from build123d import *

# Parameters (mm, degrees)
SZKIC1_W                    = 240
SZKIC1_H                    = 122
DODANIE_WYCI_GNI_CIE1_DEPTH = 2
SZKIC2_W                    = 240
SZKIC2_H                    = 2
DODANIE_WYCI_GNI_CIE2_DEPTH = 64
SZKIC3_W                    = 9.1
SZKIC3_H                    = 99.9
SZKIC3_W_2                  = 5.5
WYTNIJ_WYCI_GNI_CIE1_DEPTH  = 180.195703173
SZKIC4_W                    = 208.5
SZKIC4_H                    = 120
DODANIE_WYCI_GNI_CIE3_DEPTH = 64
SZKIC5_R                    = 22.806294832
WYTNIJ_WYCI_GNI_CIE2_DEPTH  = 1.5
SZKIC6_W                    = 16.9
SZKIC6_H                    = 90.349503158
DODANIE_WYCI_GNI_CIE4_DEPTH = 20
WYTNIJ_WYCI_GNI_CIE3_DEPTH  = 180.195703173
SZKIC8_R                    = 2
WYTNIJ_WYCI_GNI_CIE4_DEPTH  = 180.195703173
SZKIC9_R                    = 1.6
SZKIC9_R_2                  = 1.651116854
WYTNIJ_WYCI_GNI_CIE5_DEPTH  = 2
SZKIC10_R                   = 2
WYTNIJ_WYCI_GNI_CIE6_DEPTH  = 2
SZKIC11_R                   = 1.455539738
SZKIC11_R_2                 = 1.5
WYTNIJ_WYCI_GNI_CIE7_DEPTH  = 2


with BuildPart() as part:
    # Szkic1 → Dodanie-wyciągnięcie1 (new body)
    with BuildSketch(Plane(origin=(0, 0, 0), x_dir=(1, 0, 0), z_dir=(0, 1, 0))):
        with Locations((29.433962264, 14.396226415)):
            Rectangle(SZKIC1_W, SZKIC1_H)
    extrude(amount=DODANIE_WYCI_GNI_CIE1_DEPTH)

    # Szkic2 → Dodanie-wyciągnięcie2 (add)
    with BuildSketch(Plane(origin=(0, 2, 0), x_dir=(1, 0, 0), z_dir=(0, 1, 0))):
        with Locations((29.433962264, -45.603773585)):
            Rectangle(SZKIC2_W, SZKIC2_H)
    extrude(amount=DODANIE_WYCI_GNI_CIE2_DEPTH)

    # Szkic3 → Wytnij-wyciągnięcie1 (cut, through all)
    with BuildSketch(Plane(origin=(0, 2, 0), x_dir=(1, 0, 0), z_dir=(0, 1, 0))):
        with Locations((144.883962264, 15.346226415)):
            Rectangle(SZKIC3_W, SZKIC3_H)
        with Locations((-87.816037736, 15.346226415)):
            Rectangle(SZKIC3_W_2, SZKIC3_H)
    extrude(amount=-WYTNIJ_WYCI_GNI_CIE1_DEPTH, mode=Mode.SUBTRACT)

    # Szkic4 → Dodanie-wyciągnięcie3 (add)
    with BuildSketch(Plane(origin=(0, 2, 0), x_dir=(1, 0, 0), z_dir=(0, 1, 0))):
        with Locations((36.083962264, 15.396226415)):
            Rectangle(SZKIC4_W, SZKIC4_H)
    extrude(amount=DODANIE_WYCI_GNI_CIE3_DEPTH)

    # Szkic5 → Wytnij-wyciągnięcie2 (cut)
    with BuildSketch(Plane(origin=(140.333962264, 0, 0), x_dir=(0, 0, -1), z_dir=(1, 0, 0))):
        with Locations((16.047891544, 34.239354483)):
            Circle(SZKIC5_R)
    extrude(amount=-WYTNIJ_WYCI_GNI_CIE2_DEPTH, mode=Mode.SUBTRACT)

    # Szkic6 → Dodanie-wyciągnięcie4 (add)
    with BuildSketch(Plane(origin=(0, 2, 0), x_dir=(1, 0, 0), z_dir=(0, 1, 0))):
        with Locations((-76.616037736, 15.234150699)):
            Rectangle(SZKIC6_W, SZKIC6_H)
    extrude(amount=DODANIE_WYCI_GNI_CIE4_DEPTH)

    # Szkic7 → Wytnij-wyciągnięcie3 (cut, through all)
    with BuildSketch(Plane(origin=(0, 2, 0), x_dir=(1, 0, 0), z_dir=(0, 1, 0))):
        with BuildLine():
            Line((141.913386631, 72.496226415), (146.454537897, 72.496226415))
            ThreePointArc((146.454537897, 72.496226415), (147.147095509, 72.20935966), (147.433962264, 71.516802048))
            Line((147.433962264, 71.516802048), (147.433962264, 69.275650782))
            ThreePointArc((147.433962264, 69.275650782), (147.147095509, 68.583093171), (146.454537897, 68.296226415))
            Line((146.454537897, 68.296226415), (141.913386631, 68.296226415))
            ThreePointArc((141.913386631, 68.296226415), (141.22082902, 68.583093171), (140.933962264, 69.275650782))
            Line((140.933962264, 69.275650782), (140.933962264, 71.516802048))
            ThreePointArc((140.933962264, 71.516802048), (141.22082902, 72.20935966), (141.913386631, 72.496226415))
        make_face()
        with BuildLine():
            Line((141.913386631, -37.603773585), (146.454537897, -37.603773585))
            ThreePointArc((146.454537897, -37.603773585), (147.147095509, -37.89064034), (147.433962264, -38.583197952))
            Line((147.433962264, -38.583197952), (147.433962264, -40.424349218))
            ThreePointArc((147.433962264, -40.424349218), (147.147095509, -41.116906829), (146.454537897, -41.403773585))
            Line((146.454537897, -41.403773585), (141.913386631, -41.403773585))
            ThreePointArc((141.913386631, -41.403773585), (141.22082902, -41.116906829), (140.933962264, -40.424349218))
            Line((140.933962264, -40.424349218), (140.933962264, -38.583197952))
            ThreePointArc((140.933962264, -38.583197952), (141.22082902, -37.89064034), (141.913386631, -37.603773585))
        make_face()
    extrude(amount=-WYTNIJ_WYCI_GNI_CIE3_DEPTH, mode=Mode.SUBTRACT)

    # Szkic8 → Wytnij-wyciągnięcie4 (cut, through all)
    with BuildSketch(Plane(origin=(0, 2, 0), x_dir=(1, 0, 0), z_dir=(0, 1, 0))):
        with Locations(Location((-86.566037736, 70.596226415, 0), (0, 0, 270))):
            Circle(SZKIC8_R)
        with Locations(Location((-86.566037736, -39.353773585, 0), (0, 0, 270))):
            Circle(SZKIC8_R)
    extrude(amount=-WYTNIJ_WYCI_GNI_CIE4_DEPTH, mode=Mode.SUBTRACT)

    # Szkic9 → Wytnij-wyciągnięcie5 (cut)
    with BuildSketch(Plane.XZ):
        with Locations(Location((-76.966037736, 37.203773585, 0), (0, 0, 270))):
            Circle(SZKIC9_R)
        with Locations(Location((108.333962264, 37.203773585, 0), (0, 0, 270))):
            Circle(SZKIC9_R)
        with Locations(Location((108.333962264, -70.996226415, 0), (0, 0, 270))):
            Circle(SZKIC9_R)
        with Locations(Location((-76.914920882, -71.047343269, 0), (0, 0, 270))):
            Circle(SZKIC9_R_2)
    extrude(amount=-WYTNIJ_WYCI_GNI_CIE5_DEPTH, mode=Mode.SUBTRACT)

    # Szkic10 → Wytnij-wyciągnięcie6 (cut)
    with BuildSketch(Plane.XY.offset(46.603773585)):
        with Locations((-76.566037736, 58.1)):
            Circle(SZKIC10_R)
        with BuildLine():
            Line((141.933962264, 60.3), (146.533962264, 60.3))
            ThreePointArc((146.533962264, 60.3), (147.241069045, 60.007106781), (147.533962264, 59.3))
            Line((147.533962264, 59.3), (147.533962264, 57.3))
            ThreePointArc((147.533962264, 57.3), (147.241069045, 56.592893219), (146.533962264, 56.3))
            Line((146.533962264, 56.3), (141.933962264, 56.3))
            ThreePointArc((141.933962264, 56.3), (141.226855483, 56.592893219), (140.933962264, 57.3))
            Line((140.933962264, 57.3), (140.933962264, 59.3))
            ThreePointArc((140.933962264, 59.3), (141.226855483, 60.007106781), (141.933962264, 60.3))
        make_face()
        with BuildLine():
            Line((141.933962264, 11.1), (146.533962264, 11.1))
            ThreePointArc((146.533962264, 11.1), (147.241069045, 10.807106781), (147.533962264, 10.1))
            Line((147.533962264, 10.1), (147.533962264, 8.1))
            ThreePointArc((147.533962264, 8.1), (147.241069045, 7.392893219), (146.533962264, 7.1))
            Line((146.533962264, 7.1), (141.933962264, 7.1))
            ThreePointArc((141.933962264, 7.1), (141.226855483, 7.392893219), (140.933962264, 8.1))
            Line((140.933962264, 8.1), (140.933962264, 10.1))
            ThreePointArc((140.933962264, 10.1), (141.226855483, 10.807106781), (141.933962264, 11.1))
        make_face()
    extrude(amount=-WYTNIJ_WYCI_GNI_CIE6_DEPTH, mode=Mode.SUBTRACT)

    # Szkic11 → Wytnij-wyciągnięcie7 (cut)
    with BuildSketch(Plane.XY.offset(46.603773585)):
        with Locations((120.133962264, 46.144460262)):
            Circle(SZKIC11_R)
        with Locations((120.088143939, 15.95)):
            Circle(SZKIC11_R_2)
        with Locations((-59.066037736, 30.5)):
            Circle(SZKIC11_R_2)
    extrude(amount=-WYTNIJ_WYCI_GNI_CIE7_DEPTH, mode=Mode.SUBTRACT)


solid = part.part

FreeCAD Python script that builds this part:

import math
import FreeCAD as App
import Part
import Sketcher

doc = App.newDocument("Part")
body = doc.addObject("PartDesign::Body", "Body")

# Sketch on XZ plane
sketch1 = body.newObject("Sketcher::SketchObject", "Sketch")
sketch1.AttachmentSupport = (doc.getObject("XZ_Plane"), [""])
sketch1.MapMode = "FlatFace"
sketch1.addGeometry([
    Part.LineSegment(App.Vector(-91, -75, 0), App.Vector(-91, 47, 0)),
    Part.LineSegment(App.Vector(-91, 47, 0), App.Vector(149, 47, 0)),
    Part.LineSegment(App.Vector(149, 47, 0), App.Vector(149, -75, 0)),
    Part.LineSegment(App.Vector(149, -75, 0), App.Vector(-91, -75, 0)),
], False)
sketch1.addConstraint([
    Sketcher.Constraint("Coincident", 0, 2, 1, 1),
    Sketcher.Constraint("Coincident", 1, 2, 2, 1),
    Sketcher.Constraint("Coincident", 2, 2, 3, 1),
    Sketcher.Constraint("Coincident", 3, 2, 0, 1),
    Sketcher.Constraint("Vertical", 0),
    Sketcher.Constraint("Horizontal", 1),
    Sketcher.Constraint("Vertical", 2),
    Sketcher.Constraint("Horizontal", 3),
    Sketcher.Constraint("DistanceX", 1, 1, 1, 2, 240.0),
    Sketcher.Constraint("DistanceY", 0, 1, 0, 2, 122.0),
    Sketcher.Constraint("DistanceX", 0, 2, -1, 1, 90.566038),
    Sketcher.Constraint("DistanceY", -1, 1, 0, 2, 46.603774),
])
pad1 = body.newObject("PartDesign::Pad", "Pad")
pad1.Profile = sketch1
pad1.Length = 2
pad1.Reversed = True

# Sketch on XZ plane
sketch2 = body.newObject("Sketcher::SketchObject", "Sketch001")
sketch2.AttachmentSupport = (doc.getObject("XZ_Plane"), [""])
sketch2.MapMode = "FlatFace"
sketch2.AttachmentOffset = App.Placement(App.Vector(0, 0, -2), App.Rotation())
sketch2.addGeometry([
    Part.LineSegment(App.Vector(-90.6, 44.6, 0), App.Vector(-90.6, 46.6, 0)),
    Part.LineSegment(App.Vector(-90.6, 46.6, 0), App.Vector(149.4, 46.6, 0)),
    Part.LineSegment(App.Vector(149.4, 46.6, 0), App.Vector(149.4, 44.6, 0)),
    Part.LineSegment(App.Vector(149.4, 44.6, 0), App.Vector(-90.6, 44.6, 0)),
], False)
sketch2.addConstraint([
    Sketcher.Constraint("Coincident", 0, 2, 1, 1),
    Sketcher.Constraint("Coincident", 1, 2, 2, 1),
    Sketcher.Constraint("Coincident", 2, 2, 3, 1),
    Sketcher.Constraint("Coincident", 3, 2, 0, 1),
    Sketcher.Constraint("Vertical", 0),
    Sketcher.Constraint("Horizontal", 1),
    Sketcher.Constraint("Vertical", 2),
    Sketcher.Constraint("Horizontal", 3),
    Sketcher.Constraint("DistanceX", 1, 1, 1, 2, 240.0),
    Sketcher.Constraint("DistanceY", 0, 1, 0, 2, 2.0),
    Sketcher.Constraint("DistanceX", 0, 2, -1, 1, 90.566038),
    Sketcher.Constraint("DistanceY", -1, 1, 0, 2, 46.603774),
])
pad2 = body.newObject("PartDesign::Pad", "Pad001")
pad2.Profile = sketch2
pad2.Length = 64
pad2.Reversed = True

# Sketch on XZ plane
sketch3 = body.newObject("Sketcher::SketchObject", "Sketch002")
sketch3.AttachmentSupport = (doc.getObject("XZ_Plane"), [""])
sketch3.MapMode = "FlatFace"
sketch3.AttachmentOffset = App.Placement(App.Vector(0, 0, -2), App.Rotation())
sketch3.addGeometry([
    Part.LineSegment(App.Vector(140, -65, 0), App.Vector(140, 35, 0)),  # 0
    Part.LineSegment(App.Vector(140, 35, 0), App.Vector(149, 35, 0)),  # 1
    Part.LineSegment(App.Vector(149, 35, 0), App.Vector(149, -65, 0)),  # 2
    Part.LineSegment(App.Vector(149, -65, 0), App.Vector(140, -65, 0)),  # 3
    Part.LineSegment(App.Vector(-91, -65, 0), App.Vector(-91, 35, 0)),  # 4
    Part.LineSegment(App.Vector(-91, 35, 0), App.Vector(-85, 35, 0)),  # 5
    Part.LineSegment(App.Vector(-85, 35, 0), App.Vector(-85, -65, 0)),  # 6
    Part.LineSegment(App.Vector(-85, -65, 0), App.Vector(-91, -65, 0)),  # 7
], False)
sketch3.addConstraint([
    Sketcher.Constraint("Coincident", 0, 2, 1, 1),
    Sketcher.Constraint("Coincident", 1, 2, 2, 1),
    Sketcher.Constraint("Coincident", 2, 2, 3, 1),
    Sketcher.Constraint("Coincident", 3, 2, 0, 1),
    Sketcher.Constraint("Coincident", 4, 2, 5, 1),
    Sketcher.Constraint("Coincident", 5, 2, 6, 1),
    Sketcher.Constraint("Coincident", 6, 2, 7, 1),
    Sketcher.Constraint("Coincident", 7, 2, 4, 1),
    Sketcher.Constraint("Vertical", 0),
    Sketcher.Constraint("Horizontal", 1),
    Sketcher.Constraint("Vertical", 2),
    Sketcher.Constraint("Horizontal", 3),
    Sketcher.Constraint("Vertical", 4),
    Sketcher.Constraint("Horizontal", 5),
    Sketcher.Constraint("Vertical", 6),
    Sketcher.Constraint("Horizontal", 7),
    Sketcher.Constraint("Horizontal", 1, 2, 4, 2),
    Sketcher.Constraint("Horizontal", 3, 2, 6, 2),
    Sketcher.Constraint("DistanceX", 1, 1, 1, 2, 9.1),
    Sketcher.Constraint("DistanceX", 5, 1, 5, 2, 5.5),
    Sketcher.Constraint("DistanceY", 0, 1, 0, 2, 99.9),
    Sketcher.Constraint("DistanceX", 4, 2, 1, 2, 240.0),
    Sketcher.Constraint("DistanceX", -1, 1, 0, 2, 140.333962),
    Sketcher.Constraint("DistanceY", -1, 1, 0, 2, 34.603774),
])
pocket1 = body.newObject("PartDesign::Pocket", "Pocket")
pocket1.Profile = sketch3
pocket1.Type = "ThroughAll"
pocket1.Reversed = True

# Sketch on XZ plane
sketch4 = body.newObject("Sketcher::SketchObject", "Sketch003")
sketch4.AttachmentSupport = (doc.getObject("XZ_Plane"), [""])
sketch4.MapMode = "FlatFace"
sketch4.AttachmentOffset = App.Placement(App.Vector(0, 0, -2), App.Rotation())
sketch4.addGeometry([
    Part.LineSegment(App.Vector(-68, -75, 0), App.Vector(-68, 45, 0)),
    Part.LineSegment(App.Vector(-68, 45, 0), App.Vector(140, 45, 0)),
    Part.LineSegment(App.Vector(140, 45, 0), App.Vector(140, -75, 0)),
    Part.LineSegment(App.Vector(140, -75, 0), App.Vector(-68, -75, 0)),
], False)
sketch4.addConstraint([
    Sketcher.Constraint("Coincident", 0, 2, 1, 1),
    Sketcher.Constraint("Coincident", 1, 2, 2, 1),
    Sketcher.Constraint("Coincident", 2, 2, 3, 1),
    Sketcher.Constraint("Coincident", 3, 2, 0, 1),
    Sketcher.Constraint("Vertical", 0),
    Sketcher.Constraint("Horizontal", 1),
    Sketcher.Constraint("Vertical", 2),
    Sketcher.Constraint("Horizontal", 3),
    Sketcher.Constraint("DistanceY", 0, 1, 0, 2, 120.0),
    Sketcher.Constraint("DistanceX", 1, 1, 1, 2, 208.5),
    Sketcher.Constraint("DistanceX", 0, 2, -1, 1, 68.166038),
    Sketcher.Constraint("DistanceY", -1, 1, 0, 2, 44.603774),
])
pad3 = body.newObject("PartDesign::Pad", "Pad002")
pad3.Profile = sketch4
pad3.Length = 64
pad3.Reversed = True

# Sketch on YZ plane
sketch5 = body.newObject("Sketcher::SketchObject", "Sketch004")
sketch5.AttachmentSupport = (doc.getObject("YZ_Plane"), [""])
sketch5.MapMode = "FlatFace"
sketch5.AttachmentOffset = App.Placement(App.Vector(0, 0, 140.333962), App.Rotation())
sketch5.addGeometry(Part.Circle(App.Vector(34, -16, 0), App.Vector(0, 0, 1), 23), False)
sketch5.addConstraint([
    Sketcher.Constraint("Diameter", 0, 45.61259),
    Sketcher.Constraint("DistanceY", 0, 3, -1, 1, 16.047892),
    Sketcher.Constraint("DistanceX", -1, 1, 0, 3, 34.239354),
])
pocket2 = body.newObject("PartDesign::Pocket", "Pocket001")
pocket2.Profile = sketch5
pocket2.Length = 1.5

# Sketch on XZ plane
sketch6 = body.newObject("Sketcher::SketchObject", "Sketch005")
sketch6.AttachmentSupport = (doc.getObject("XZ_Plane"), [""])
sketch6.MapMode = "FlatFace"
sketch6.AttachmentOffset = App.Placement(App.Vector(0, 0, -2), App.Rotation())
sketch6.addGeometry([
    Part.LineSegment(App.Vector(-85, -60, 0), App.Vector(-85, 30, 0)),
    Part.LineSegment(App.Vector(-85, 30, 0), App.Vector(-68, 30, 0)),
    Part.LineSegment(App.Vector(-68, 30, 0), App.Vector(-68, -60, 0)),
    Part.LineSegment(App.Vector(-68, -60, 0), App.Vector(-85, -60, 0)),
], False)
sketch6.addConstraint([
    Sketcher.Constraint("Coincident", 0, 2, 1, 1),
    Sketcher.Constraint("Coincident", 1, 2, 2, 1),
    Sketcher.Constraint("Coincident", 2, 2, 3, 1),
    Sketcher.Constraint("Coincident", 3, 2, 0, 1),
    Sketcher.Constraint("Vertical", 0),
    Sketcher.Constraint("Horizontal", 1),
    Sketcher.Constraint("Vertical", 2),
    Sketcher.Constraint("Horizontal", 3),
    Sketcher.Constraint("DistanceX", 1, 1, 1, 2, 16.9),
    Sketcher.Constraint("DistanceY", -1, 1, 0, 2, 29.940601),
    Sketcher.Constraint("DistanceY", 0, 1, 0, 2, 90.349503),
    Sketcher.Constraint("DistanceX", 0, 2, -1, 1, 85.066038),
])
pad4 = body.newObject("PartDesign::Pad", "Pad003")
pad4.Profile = sketch6
pad4.Length = 20
pad4.Reversed = True

# Sketch on XZ plane
sketch7 = body.newObject("Sketcher::SketchObject", "Sketch006")
sketch7.AttachmentSupport = (doc.getObject("XZ_Plane"), [""])
sketch7.MapMode = "FlatFace"
sketch7.AttachmentOffset = App.Placement(App.Vector(0, 0, -2), App.Rotation())
sketch7.addGeometry([
    Part.LineSegment(App.Vector(146.5, -72.5, 0), App.Vector(141.9, -72.5, 0)),  # 0
    Part.ArcOfCircle(Part.Circle(App.Vector(141.9, -71.5, 0), App.Vector(0, 0, 1), 1), math.radians(180), math.radians(270)),  # 1
    Part.LineSegment(App.Vector(140.9, -71.5, 0), App.Vector(140.9, -69.3, 0)),  # 2
    Part.ArcOfCircle(Part.Circle(App.Vector(141.9, -69.3, 0), App.Vector(0, 0, 1), 1), math.radians(90), math.radians(180)),  # 3
    Part.LineSegment(App.Vector(141.9, -68.3, 0), App.Vector(146.5, -68.3, 0)),  # 4
    Part.ArcOfCircle(Part.Circle(App.Vector(146.5, -69.3, 0), App.Vector(0, 0, 1), 1), math.radians(0), math.radians(90)),  # 5
    Part.LineSegment(App.Vector(147.4, -69.3, 0), App.Vector(147.4, -71.5, 0)),  # 6
    Part.ArcOfCircle(Part.Circle(App.Vector(146.5, -71.5, 0), App.Vector(0, 0, 1), 1), math.radians(-90), math.radians(0)),  # 7
    Part.LineSegment(App.Vector(146.5, 37.6, 0), App.Vector(141.9, 37.6, 0)),  # 8
    Part.ArcOfCircle(Part.Circle(App.Vector(141.9, 38.6, 0), App.Vector(0, 0, 1), 1), math.radians(180), math.radians(270)),  # 9
    Part.LineSegment(App.Vector(140.9, 38.6, 0), App.Vector(140.9, 40.4, 0)),  # 10
    Part.ArcOfCircle(Part.Circle(App.Vector(141.9, 40.4, 0), App.Vector(0, 0, 1), 1), math.radians(90), math.radians(180)),  # 11
    Part.LineSegment(App.Vector(141.9, 41.4, 0), App.Vector(146.5, 41.4, 0)),  # 12
    Part.ArcOfCircle(Part.Circle(App.Vector(146.5, 40.4, 0), App.Vector(0, 0, 1), 1), math.radians(0), math.radians(90)),  # 13
    Part.LineSegment(App.Vector(147.4, 40.4, 0), App.Vector(147.4, 38.6, 0)),  # 14
    Part.ArcOfCircle(Part.Circle(App.Vector(146.5, 38.6, 0), App.Vector(0, 0, 1), 1), math.radians(-90), math.radians(0)),  # 15
], False)
sketch7.addConstraint([
    Sketcher.Constraint("Tangent", 0, 2, 1, 2),
    Sketcher.Constraint("Tangent", 1, 1, 2, 1),
    Sketcher.Constraint("Tangent", 2, 2, 3, 2),
    Sketcher.Constraint("Tangent", 3, 1, 4, 1),
    Sketcher.Constraint("Tangent", 4, 2, 5, 2),
    Sketcher.Constraint("Tangent", 5, 1, 6, 1),
    Sketcher.Constraint("Tangent", 6, 2, 7, 2),
    Sketcher.Constraint("Tangent", 7, 1, 0, 1),
    Sketcher.Constraint("Tangent", 8, 2, 9, 2),
    Sketcher.Constraint("Tangent", 9, 1, 10, 1),
    Sketcher.Constraint("Tangent", 10, 2, 11, 2),
    Sketcher.Constraint("Tangent", 11, 1, 12, 1),
    Sketcher.Constraint("Tangent", 12, 2, 13, 2),
    Sketcher.Constraint("Tangent", 13, 1, 14, 1),
    Sketcher.Constraint("Tangent", 14, 2, 15, 2),
    Sketcher.Constraint("Tangent", 15, 1, 8, 1),
    Sketcher.Constraint("Horizontal", 0),
    Sketcher.Constraint("Vertical", 2),
    Sketcher.Constraint("Horizontal", 4),
    Sketcher.Constraint("Vertical", 6),
    Sketcher.Constraint("Horizontal", 8),
    Sketcher.Constraint("Vertical", 10),
    Sketcher.Constraint("Horizontal", 12),
    Sketcher.Constraint("Vertical", 14),
    Sketcher.Constraint("Equal", 1, 3),
    Sketcher.Constraint("Equal", 3, 5),
    Sketcher.Constraint("Equal", 5, 7),
    Sketcher.Constraint("Equal", 7, 9),
    Sketcher.Constraint("Equal", 9, 11),
    Sketcher.Constraint("Equal", 11, 13),
    Sketcher.Constraint("Equal", 13, 15),
    Sketcher.Constraint("Vertical", 3, 3, 9, 3),
    Sketcher.Constraint("Vertical", 7, 3, 13, 3),
    Sketcher.Constraint("DistanceY", 1, 3, 9, 3, 110.1),
    Sketcher.Constraint("DistanceY", 3, 3, 11, 3, 109.7),
    Sketcher.Constraint("DistanceY", 0, 2, 3, 1, 4.2),
    Sketcher.Constraint("Radius", 1, 0.979424),
    Sketcher.Constraint("DistanceX", 0, 2, 0, 1, 4.541151),
    Sketcher.Constraint("DistanceY", 3, 3, -1, 1, 69.275651),
    Sketcher.Constraint("DistanceX", -1, 1, 1, 3, 141.913387),
])
pocket3 = body.newObject("PartDesign::Pocket", "Pocket002")
pocket3.Profile = sketch7
pocket3.Type = "ThroughAll"
pocket3.Reversed = True

# Sketch on XZ plane
sketch8 = body.newObject("Sketcher::SketchObject", "Sketch007")
sketch8.AttachmentSupport = (doc.getObject("XZ_Plane"), [""])
sketch8.MapMode = "FlatFace"
sketch8.AttachmentOffset = App.Placement(App.Vector(0, 0, -2), App.Rotation())
sketch8.addGeometry([
    Part.Circle(App.Vector(-86.6, -70.6, 0), App.Vector(0, 0, 1), 2),
    Part.Circle(App.Vector(-86.6, 39.4, 0), App.Vector(0, 0, 1), 2),
], False)
sketch8.addConstraint([
    Sketcher.Constraint("Equal", 0, 1),
    Sketcher.Constraint("Vertical", 0, 3, 1, 3),
    Sketcher.Constraint("Diameter", 0, 4.0),
    Sketcher.Constraint("DistanceY", 0, 3, 1, 3, 109.95),
    Sketcher.Constraint("DistanceX", 0, 3, -1, 1, 86.566038),
    Sketcher.Constraint("DistanceY", 0, 3, -1, 1, 70.596226),
])
pocket4 = body.newObject("PartDesign::Pocket", "Pocket003")
pocket4.Profile = sketch8
pocket4.Type = "ThroughAll"
pocket4.Reversed = True

# Sketch on XZ plane
sketch9 = body.newObject("Sketcher::SketchObject", "Sketch008")
sketch9.AttachmentSupport = (doc.getObject("XZ_Plane"), [""])
sketch9.MapMode = "FlatFace"
sketch9.addGeometry([
    Part.Circle(App.Vector(-77, 37.2, 0), App.Vector(0, 0, 1), 1.6),
    Part.Circle(App.Vector(108.3, 37.2, 0), App.Vector(0, 0, 1), 1.6),
    Part.Circle(App.Vector(108.3, -71, 0), App.Vector(0, 0, 1), 1.6),
    Part.Circle(App.Vector(-76.9, -71, 0), App.Vector(0, 0, 1), 1.7),
], False)
sketch9.addConstraint([
    Sketcher.Constraint("Equal", 0, 1),
    Sketcher.Constraint("Equal", 1, 2),
    Sketcher.Constraint("Horizontal", 0, 3, 1, 3),
    Sketcher.Constraint("Vertical", 1, 3, 2, 3),
    Sketcher.Constraint("Diameter", 0, 3.2),
    Sketcher.Constraint("DistanceX", 0, 3, 1, 3, 185.3),
    Sketcher.Constraint("DistanceY", 2, 3, 1, 3, 108.2),
    Sketcher.Constraint("Diameter", 3, 3.302234),
    Sketcher.Constraint("DistanceX", 3, 3, -1, 1, 76.914921),
    Sketcher.Constraint("DistanceX", 0, 3, -1, 1, 76.966038),
    Sketcher.Constraint("DistanceY", -1, 1, 0, 3, 37.203774),
    Sketcher.Constraint("DistanceY", 3, 3, -1, 1, 71.047343),
])
pocket5 = body.newObject("PartDesign::Pocket", "Pocket004")
pocket5.Profile = sketch9
pocket5.Length = 2

# Sketch on XY plane
sketch10 = body.newObject("Sketcher::SketchObject", "Sketch009")
sketch10.AttachmentSupport = (doc.getObject("XY_Plane"), [""])
sketch10.MapMode = "FlatFace"
sketch10.AttachmentOffset = App.Placement(App.Vector(0, 0, 46.603774), App.Rotation())
sketch10.addGeometry([
    Part.Circle(App.Vector(-76.6, 58.1, 0), App.Vector(0, 0, 1), 2),  # 0
    Part.LineSegment(App.Vector(146.5, 60.3, 0), App.Vector(141.9, 60.3, 0)),  # 1
    Part.ArcOfCircle(Part.Circle(App.Vector(141.9, 59.3, 0), App.Vector(0, 0, 1), 1), math.radians(90), math.radians(180)),  # 2
    Part.LineSegment(App.Vector(140.9, 59.3, 0), App.Vector(140.9, 57.3, 0)),  # 3
    Part.ArcOfCircle(Part.Circle(App.Vector(141.9, 57.3, 0), App.Vector(0, 0, 1), 1), math.radians(-180), math.radians(-90)),  # 4
    Part.LineSegment(App.Vector(141.9, 56.3, 0), App.Vector(146.5, 56.3, 0)),  # 5
    Part.ArcOfCircle(Part.Circle(App.Vector(146.5, 57.3, 0), App.Vector(0, 0, 1), 1), math.radians(-90), math.radians(0)),  # 6
    Part.LineSegment(App.Vector(147.5, 57.3, 0), App.Vector(147.5, 59.3, 0)),  # 7
    Part.ArcOfCircle(Part.Circle(App.Vector(146.5, 59.3, 0), App.Vector(0, 0, 1), 1), math.radians(0), math.radians(90)),  # 8
    Part.LineSegment(App.Vector(146.5, 11.1, 0), App.Vector(141.9, 11.1, 0)),  # 9
    Part.ArcOfCircle(Part.Circle(App.Vector(141.9, 10.1, 0), App.Vector(0, 0, 1), 1), math.radians(90), math.radians(180)),  # 10
    Part.LineSegment(App.Vector(140.9, 10.1, 0), App.Vector(140.9, 8.1, 0)),  # 11
    Part.ArcOfCircle(Part.Circle(App.Vector(141.9, 8.1, 0), App.Vector(0, 0, 1), 1), math.radians(-180), math.radians(-90)),  # 12
    Part.LineSegment(App.Vector(141.9, 7.1, 0), App.Vector(146.5, 7.1, 0)),  # 13
    Part.ArcOfCircle(Part.Circle(App.Vector(146.5, 8.1, 0), App.Vector(0, 0, 1), 1), math.radians(-90), math.radians(0)),  # 14
    Part.LineSegment(App.Vector(147.5, 8.1, 0), App.Vector(147.5, 10.1, 0)),  # 15
    Part.ArcOfCircle(Part.Circle(App.Vector(146.5, 10.1, 0), App.Vector(0, 0, 1), 1), math.radians(0), math.radians(90)),  # 16
], False)
sketch10.addConstraint([
    Sketcher.Constraint("Tangent", 1, 2, 2, 1),
    Sketcher.Constraint("Tangent", 2, 2, 3, 1),
    Sketcher.Constraint("Tangent", 3, 2, 4, 1),
    Sketcher.Constraint("Tangent", 4, 2, 5, 1),
    Sketcher.Constraint("Tangent", 5, 2, 6, 1),
    Sketcher.Constraint("Tangent", 6, 2, 7, 1),
    Sketcher.Constraint("Tangent", 7, 2, 8, 1),
    Sketcher.Constraint("Tangent", 8, 2, 1, 1),
    Sketcher.Constraint("Tangent", 9, 2, 10, 1),
    Sketcher.Constraint("Tangent", 10, 2, 11, 1),
    Sketcher.Constraint("Tangent", 11, 2, 12, 1),
    Sketcher.Constraint("Tangent", 12, 2, 13, 1),
    Sketcher.Constraint("Tangent", 13, 2, 14, 1),
    Sketcher.Constraint("Tangent", 14, 2, 15, 1),
    Sketcher.Constraint("Tangent", 15, 2, 16, 1),
    Sketcher.Constraint("Tangent", 16, 2, 9, 1),
    Sketcher.Constraint("Horizontal", 1),
    Sketcher.Constraint("Vertical", 3),
    Sketcher.Constraint("Horizontal", 5),
    Sketcher.Constraint("Vertical", 7),
    Sketcher.Constraint("Horizontal", 9),
    Sketcher.Constraint("Vertical", 11),
    Sketcher.Constraint("Horizontal", 13),
    Sketcher.Constraint("Vertical", 15),
    Sketcher.Constraint("Equal", 2, 4),
    Sketcher.Constraint("Equal", 4, 6),
    Sketcher.Constraint("Equal", 6, 8),
    Sketcher.Constraint("Equal", 8, 10),
    Sketcher.Constraint("Equal", 10, 12),
    Sketcher.Constraint("Equal", 12, 14),
    Sketcher.Constraint("Equal", 14, 16),
    Sketcher.Constraint("Vertical", 4, 3, 10, 3),
    Sketcher.Constraint("Vertical", 8, 3, 14, 3),
    Sketcher.Constraint("Equal", 7, 11),
    Sketcher.Constraint("Diameter", 0, 4.0),
    Sketcher.Constraint("Radius", 2, 1.0),
    Sketcher.Constraint("DistanceY", 3, 2, 3, 1, 2.0),
    Sketcher.Constraint("DistanceX", 1, 2, 1, 1, 4.6),
    Sketcher.Constraint("DistanceY", 10, 3, 0, 3, 48.0),
    Sketcher.Constraint("DistanceY", -1, 1, 0, 3, 58.1),
    Sketcher.Constraint("DistanceY", -1, 1, 2, 3, 59.3),
    Sketcher.Constraint("DistanceX", 0, 3, 2, 3, 218.5),
    Sketcher.Constraint("DistanceX", 0, 3, -1, 1, 76.566038),
])
pocket6 = body.newObject("PartDesign::Pocket", "Pocket005")
pocket6.Profile = sketch10
pocket6.Length = 2

# Sketch on XY plane
sketch11 = body.newObject("Sketcher::SketchObject", "Sketch010")
sketch11.AttachmentSupport = (doc.getObject("XY_Plane"), [""])
sketch11.MapMode = "FlatFace"
sketch11.AttachmentOffset = App.Placement(App.Vector(0, 0, 46.603774), App.Rotation())
sketch11.addGeometry([
    Part.Circle(App.Vector(120.1, 46.1, 0), App.Vector(0, 0, 1), 1.5),
    Part.Circle(App.Vector(120.1, 15.9, 0), App.Vector(0, 0, 1), 1.5),
    Part.Circle(App.Vector(-59.1, 30.5, 0), App.Vector(0, 0, 1), 1.5),
], False)
sketch11.addConstraint([
    Sketcher.Constraint("Equal", 1, 2),
    Sketcher.Constraint("Diameter", 1, 3.0),
    Sketcher.Constraint("DistanceY", -1, 1, 2, 3, 30.5),
    Sketcher.Constraint("DistanceX", 2, 3, 0, 3, 179.2),
    Sketcher.Constraint("Diameter", 0, 2.911079),
    Sketcher.Constraint("DistanceY", -1, 1, 1, 3, 15.95),
    Sketcher.Constraint("DistanceY", -1, 1, 0, 3, 46.14446),
    Sketcher.Constraint("DistanceX", 1, 3, 0, 3, 0.045818),
    Sketcher.Constraint("DistanceX", -1, 1, 0, 3, 120.133962),
])
pocket7 = body.newObject("PartDesign::Pocket", "Pocket006")
pocket7.Profile = sketch11
pocket7.Length = 2

doc.recompute()
